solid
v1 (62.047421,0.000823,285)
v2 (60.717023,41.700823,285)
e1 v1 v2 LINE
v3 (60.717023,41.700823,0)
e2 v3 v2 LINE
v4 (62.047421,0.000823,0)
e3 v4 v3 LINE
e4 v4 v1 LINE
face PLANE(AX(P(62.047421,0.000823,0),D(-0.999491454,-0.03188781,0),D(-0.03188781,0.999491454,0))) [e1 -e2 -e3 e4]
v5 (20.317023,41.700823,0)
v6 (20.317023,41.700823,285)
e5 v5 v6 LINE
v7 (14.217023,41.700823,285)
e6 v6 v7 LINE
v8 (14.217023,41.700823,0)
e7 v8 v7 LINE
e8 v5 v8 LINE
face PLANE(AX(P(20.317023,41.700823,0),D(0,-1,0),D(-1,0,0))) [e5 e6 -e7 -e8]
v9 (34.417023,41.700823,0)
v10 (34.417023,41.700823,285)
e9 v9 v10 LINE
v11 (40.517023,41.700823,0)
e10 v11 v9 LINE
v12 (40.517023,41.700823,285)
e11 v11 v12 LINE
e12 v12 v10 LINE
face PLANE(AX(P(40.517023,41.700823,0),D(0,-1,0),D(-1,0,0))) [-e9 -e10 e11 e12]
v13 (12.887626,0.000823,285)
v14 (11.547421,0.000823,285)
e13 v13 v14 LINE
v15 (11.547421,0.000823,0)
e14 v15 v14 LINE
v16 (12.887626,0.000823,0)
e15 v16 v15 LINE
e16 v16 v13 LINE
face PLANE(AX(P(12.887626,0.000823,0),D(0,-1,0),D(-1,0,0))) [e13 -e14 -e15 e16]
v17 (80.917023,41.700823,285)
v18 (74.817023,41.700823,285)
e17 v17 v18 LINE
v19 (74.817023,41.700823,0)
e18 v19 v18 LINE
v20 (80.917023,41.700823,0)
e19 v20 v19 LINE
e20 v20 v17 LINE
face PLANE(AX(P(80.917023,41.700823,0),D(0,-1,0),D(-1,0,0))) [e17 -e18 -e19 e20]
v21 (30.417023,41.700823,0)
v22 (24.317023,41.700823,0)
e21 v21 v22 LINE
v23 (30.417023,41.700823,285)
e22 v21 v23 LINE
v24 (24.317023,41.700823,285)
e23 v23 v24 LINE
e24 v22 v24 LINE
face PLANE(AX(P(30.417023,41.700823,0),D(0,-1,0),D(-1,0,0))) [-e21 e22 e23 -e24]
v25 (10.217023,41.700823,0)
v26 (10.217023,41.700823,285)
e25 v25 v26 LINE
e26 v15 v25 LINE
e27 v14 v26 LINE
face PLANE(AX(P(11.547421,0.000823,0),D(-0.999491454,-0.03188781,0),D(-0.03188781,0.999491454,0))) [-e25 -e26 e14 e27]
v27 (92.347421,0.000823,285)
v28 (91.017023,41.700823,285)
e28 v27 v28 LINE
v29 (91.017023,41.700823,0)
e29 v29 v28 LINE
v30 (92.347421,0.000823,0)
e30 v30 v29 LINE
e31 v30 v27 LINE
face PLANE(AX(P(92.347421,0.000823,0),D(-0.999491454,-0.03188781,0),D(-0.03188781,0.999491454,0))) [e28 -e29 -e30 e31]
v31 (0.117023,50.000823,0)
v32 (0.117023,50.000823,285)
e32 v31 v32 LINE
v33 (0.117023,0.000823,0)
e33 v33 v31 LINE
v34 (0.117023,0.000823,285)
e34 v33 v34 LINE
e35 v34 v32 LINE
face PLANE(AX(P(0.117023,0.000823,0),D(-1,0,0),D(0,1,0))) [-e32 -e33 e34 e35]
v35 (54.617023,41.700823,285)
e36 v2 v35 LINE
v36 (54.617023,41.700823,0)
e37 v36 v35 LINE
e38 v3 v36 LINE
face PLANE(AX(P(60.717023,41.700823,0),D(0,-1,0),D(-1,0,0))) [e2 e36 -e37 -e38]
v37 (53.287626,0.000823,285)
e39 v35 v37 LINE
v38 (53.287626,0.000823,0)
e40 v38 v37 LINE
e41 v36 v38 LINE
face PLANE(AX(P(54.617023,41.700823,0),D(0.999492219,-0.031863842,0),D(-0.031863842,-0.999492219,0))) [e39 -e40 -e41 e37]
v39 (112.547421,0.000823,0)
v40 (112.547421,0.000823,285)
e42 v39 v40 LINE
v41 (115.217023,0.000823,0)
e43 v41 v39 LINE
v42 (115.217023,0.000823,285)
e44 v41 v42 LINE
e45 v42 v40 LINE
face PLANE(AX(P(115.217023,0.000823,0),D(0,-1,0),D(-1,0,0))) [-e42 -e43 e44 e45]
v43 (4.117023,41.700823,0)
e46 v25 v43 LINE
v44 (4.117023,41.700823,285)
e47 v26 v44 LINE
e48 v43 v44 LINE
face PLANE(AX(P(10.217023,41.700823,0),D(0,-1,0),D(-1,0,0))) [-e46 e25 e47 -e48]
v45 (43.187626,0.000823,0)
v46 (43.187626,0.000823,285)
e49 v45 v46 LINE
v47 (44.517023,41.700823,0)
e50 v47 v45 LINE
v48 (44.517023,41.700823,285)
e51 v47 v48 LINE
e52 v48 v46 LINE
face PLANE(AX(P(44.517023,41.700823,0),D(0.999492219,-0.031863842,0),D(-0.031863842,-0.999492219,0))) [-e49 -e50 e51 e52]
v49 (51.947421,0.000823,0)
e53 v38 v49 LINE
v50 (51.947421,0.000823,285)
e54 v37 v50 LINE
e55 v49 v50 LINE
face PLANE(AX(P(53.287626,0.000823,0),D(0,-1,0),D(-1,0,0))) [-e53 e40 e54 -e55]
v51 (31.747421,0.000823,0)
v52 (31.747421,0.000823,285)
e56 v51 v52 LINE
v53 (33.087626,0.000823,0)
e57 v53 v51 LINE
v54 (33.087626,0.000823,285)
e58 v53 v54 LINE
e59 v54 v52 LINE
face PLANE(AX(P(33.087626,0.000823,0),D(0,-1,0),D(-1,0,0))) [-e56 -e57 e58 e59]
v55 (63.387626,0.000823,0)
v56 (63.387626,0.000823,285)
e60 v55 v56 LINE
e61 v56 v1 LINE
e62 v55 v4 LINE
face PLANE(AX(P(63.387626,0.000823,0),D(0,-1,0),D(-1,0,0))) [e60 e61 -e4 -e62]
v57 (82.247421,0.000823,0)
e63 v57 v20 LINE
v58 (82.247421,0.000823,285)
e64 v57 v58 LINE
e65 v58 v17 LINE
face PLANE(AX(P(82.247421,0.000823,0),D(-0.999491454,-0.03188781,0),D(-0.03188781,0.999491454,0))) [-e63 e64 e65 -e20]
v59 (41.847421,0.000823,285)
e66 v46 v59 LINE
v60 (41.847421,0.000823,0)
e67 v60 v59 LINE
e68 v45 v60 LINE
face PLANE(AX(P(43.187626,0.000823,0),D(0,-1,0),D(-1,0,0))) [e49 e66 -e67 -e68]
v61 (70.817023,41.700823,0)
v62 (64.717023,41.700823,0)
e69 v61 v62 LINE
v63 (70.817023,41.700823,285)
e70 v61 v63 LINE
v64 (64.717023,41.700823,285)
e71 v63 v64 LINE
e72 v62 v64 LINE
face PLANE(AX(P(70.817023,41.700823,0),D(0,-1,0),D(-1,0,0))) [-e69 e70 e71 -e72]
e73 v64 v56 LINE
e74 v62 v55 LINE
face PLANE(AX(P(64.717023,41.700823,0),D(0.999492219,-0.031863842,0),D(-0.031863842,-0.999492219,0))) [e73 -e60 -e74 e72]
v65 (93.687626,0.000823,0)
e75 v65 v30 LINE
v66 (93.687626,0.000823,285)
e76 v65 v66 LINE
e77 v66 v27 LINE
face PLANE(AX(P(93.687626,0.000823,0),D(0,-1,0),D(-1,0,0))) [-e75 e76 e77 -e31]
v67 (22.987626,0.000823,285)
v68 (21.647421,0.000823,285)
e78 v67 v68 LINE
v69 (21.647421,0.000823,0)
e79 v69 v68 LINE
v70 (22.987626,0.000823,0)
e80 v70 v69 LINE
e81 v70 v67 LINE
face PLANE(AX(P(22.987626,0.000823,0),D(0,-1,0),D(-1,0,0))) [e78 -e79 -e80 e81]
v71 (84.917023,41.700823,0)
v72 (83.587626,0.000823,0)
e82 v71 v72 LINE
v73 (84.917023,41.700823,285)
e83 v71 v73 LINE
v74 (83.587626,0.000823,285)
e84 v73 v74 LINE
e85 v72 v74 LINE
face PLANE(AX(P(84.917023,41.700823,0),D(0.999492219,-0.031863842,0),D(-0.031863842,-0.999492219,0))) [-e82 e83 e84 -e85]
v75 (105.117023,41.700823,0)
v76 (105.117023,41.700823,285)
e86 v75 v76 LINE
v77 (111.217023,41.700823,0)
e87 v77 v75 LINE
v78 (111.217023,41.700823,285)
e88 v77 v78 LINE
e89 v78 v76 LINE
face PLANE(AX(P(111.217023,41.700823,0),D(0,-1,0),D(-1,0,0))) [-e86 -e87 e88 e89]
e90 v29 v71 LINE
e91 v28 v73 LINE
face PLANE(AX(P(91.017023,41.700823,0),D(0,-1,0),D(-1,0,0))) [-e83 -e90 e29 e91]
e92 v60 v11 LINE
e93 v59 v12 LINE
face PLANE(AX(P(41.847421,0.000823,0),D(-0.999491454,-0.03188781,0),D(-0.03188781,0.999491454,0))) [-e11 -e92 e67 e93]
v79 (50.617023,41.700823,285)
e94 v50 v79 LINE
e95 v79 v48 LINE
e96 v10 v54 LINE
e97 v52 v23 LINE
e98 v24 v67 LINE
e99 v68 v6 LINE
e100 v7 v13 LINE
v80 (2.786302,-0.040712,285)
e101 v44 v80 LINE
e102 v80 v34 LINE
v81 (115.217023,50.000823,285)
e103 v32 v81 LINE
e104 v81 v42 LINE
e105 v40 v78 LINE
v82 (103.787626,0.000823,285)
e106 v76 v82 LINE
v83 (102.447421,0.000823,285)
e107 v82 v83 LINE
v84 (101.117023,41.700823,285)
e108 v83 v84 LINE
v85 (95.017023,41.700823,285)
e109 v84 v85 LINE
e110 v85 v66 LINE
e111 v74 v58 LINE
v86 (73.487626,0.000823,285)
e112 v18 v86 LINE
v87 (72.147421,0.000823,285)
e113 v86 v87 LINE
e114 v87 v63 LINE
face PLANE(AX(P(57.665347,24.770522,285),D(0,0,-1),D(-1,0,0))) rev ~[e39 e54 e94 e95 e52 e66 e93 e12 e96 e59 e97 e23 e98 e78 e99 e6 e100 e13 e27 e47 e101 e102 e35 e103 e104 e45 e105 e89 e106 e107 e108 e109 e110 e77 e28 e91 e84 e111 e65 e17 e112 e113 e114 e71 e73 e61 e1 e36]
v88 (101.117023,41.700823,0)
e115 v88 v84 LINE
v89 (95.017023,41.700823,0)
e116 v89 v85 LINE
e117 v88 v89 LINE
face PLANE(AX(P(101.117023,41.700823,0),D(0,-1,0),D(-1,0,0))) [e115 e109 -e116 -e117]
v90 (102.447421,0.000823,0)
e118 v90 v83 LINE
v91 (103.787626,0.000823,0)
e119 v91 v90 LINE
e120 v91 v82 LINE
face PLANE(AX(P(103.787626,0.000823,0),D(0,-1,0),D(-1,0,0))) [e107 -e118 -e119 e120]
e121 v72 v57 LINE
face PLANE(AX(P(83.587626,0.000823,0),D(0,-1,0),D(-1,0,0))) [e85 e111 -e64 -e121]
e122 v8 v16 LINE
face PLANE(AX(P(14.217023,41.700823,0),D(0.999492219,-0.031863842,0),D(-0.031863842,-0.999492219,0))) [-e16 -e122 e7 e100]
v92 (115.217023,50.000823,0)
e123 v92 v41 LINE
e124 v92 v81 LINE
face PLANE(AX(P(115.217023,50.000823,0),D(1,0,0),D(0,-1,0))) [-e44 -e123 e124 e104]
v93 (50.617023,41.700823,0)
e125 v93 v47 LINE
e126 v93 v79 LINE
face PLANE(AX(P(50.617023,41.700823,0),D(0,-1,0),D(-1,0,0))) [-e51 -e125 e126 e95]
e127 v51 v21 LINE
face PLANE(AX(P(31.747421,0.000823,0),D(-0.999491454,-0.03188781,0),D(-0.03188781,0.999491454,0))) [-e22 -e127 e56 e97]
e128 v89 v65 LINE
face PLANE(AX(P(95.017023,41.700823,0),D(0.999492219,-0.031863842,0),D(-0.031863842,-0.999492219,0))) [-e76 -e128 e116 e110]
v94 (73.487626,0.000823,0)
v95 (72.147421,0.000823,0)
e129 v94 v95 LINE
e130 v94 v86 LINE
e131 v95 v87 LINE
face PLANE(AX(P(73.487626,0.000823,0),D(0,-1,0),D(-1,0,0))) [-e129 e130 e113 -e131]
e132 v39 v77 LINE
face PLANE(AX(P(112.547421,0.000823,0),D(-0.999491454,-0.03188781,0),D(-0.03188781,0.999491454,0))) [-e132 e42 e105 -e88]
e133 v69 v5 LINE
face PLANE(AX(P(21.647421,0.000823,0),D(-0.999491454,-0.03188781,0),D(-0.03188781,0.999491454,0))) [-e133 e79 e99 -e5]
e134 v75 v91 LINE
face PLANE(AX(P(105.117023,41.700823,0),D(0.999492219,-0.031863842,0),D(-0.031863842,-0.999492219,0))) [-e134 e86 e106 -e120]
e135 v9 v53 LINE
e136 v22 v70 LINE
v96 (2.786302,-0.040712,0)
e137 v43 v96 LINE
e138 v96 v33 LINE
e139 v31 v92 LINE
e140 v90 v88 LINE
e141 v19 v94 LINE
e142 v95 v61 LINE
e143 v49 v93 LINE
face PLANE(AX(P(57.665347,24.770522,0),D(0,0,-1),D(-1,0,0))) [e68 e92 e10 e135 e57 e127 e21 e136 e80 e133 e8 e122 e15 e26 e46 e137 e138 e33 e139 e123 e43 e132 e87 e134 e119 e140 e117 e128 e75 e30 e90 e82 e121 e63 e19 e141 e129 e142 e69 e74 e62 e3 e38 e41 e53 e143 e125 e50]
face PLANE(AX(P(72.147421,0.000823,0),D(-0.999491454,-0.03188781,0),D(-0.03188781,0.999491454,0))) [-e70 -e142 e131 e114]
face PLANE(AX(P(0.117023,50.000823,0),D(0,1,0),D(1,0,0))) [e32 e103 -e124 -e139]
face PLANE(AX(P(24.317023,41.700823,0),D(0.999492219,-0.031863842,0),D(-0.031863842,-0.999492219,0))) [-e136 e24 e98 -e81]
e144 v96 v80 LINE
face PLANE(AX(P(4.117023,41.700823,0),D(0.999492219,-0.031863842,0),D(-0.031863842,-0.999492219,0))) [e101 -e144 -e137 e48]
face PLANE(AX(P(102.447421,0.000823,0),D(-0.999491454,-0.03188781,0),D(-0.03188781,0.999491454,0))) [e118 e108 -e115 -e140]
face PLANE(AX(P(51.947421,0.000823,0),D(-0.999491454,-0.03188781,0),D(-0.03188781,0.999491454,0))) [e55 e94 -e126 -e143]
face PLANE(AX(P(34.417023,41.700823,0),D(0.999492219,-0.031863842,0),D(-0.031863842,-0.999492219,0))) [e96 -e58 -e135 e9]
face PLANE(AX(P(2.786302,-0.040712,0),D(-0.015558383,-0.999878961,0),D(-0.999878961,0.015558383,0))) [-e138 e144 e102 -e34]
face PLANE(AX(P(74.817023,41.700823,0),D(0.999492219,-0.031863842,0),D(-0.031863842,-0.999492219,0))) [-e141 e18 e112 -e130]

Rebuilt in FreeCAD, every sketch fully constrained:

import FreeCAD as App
import Part
import Sketcher

V = App.Vector
Q = App.Units.Quantity


def add_polygon(sketch, points):
    """Adds a closed chain of lines whose ends are joined by coincident constraints."""
    first, n = sketch.GeometryCount, len(points)
    for a, b in zip(points, points[1:] + points[:1]):
        sketch.addGeometry(Part.LineSegment(App.Vector(*a, 0), App.Vector(*b, 0)), False)
    for i in range(n):
        sketch.addConstraint(Sketcher.Constraint("Coincident", first + i, 2, first + (i + 1) % n, 1))

doc = App.newDocument("Part")
body = doc.addObject("PartDesign::Body", "Body")

# Sketch on XY plane
sketch1 = body.newObject("Sketcher::SketchObject", "Sketch")
sketch1.AttachmentSupport = (doc.getObject("XY_Plane"), [""])
sketch1.MapMode = "FlatFace"
add_polygon(sketch1, [(0.117023, 50.000823), (0.117023, 0.000823), (2.786302, -0.040712), (4.117023, 41.700823), (10.217023, 41.700823), (11.547421, 0.000823), (12.887626, 0.000823), (14.217023, 41.700823), (20.317023, 41.700823), (21.647421, 0.000823), (22.987626, 0.000823), (24.317023, 41.700823), (30.417023, 41.700823), (31.747421, 0.000823), (33.087626, 0.000823), (34.417023, 41.700823), (40.517023, 41.700823), (41.847421, 0.000823), (43.187626, 0.000823), (44.517023, 41.700823), (50.617023, 41.700823), (51.947421, 0.000823), (53.287626, 0.000823), (54.617023, 41.700823), (60.717023, 41.700823), (62.047421, 0.000823), (63.387626, 0.000823), (64.717023, 41.700823), (70.817023, 41.700823), (72.147421, 0.000823), (73.487626, 0.000823), (74.817023, 41.700823), (80.917023, 41.700823), (82.247421, 0.000823), (83.587626, 0.000823), (84.917023, 41.700823), (91.017023, 41.700823), (92.347421, 0.000823), (93.687626, 0.000823), (95.017023, 41.700823), (101.117023, 41.700823), (102.447421, 0.000823), (103.787626, 0.000823), (105.117023, 41.700823), (111.217023, 41.700823), (112.547421, 0.000823), (115.217023, 0.000823), (115.217023, 50.000823)])  # lines 0-47
sketch1.addConstraint([
    Sketcher.Constraint("Vertical", 0),
    Sketcher.Constraint("Horizontal", 3),
    Sketcher.Constraint("Horizontal", 5),
    Sketcher.Constraint("Horizontal", 7),
    Sketcher.Constraint("Horizontal", 9),
    Sketcher.Constraint("Horizontal", 11),
    Sketcher.Constraint("Horizontal", 13),
    Sketcher.Constraint("Horizontal", 15),
    Sketcher.Constraint("Horizontal", 17),
    Sketcher.Constraint("Horizontal", 19),
    Sketcher.Constraint("Horizontal", 21),
    Sketcher.Constraint("Horizontal", 23),
    Sketcher.Constraint("Horizontal", 25),
    Sketcher.Constraint("Horizontal", 27),
    Sketcher.Constraint("Horizontal", 29),
    Sketcher.Constraint("Horizontal", 31),
    Sketcher.Constraint("Horizontal", 33),
    Sketcher.Constraint("Horizontal", 35),
    Sketcher.Constraint("Horizontal", 37),
    Sketcher.Constraint("Horizontal", 39),
    Sketcher.Constraint("Horizontal", 41),
    Sketcher.Constraint("Horizontal", 43),
    Sketcher.Constraint("Horizontal", 45),
    Sketcher.Constraint("Vertical", 46),
    Sketcher.Constraint("Horizontal", 47),
    Sketcher.Constraint("Parallel", 2, 6),
    Sketcher.Constraint("Parallel", 4, 8),
    Sketcher.Constraint("Parallel", 6, 10),
    Sketcher.Constraint("Parallel", 8, 12),
    Sketcher.Constraint("Parallel", 10, 14),
    Sketcher.Constraint("Parallel", 12, 16),
    Sketcher.Constraint("Parallel", 14, 18),
    Sketcher.Constraint("Parallel", 16, 20),
    Sketcher.Constraint("Parallel", 18, 22),
    Sketcher.Constraint("Parallel", 20, 24),
    Sketcher.Constraint("Parallel", 22, 26),
    Sketcher.Constraint("Parallel", 24, 28),
    Sketcher.Constraint("Parallel", 26, 30),
    Sketcher.Constraint("Parallel", 28, 32),
    Sketcher.Constraint("Parallel", 30, 34),
    Sketcher.Constraint("Parallel", 32, 36),
    Sketcher.Constraint("Parallel", 34, 38),
    Sketcher.Constraint("Parallel", 36, 40),
    Sketcher.Constraint("Parallel", 38, 42),
    Sketcher.Constraint("Parallel", 40, 44),
    Sketcher.Constraint("Horizontal", 0, 2, 4, 2),
    Sketcher.Constraint("Horizontal", 3, 2, 6, 2),
    Sketcher.Constraint("Horizontal", 5, 2, 8, 2),
    Sketcher.Constraint("Horizontal", 7, 2, 10, 2),
    Sketcher.Constraint("Horizontal", 9, 2, 12, 2),
    Sketcher.Constraint("Horizontal", 11, 2, 14, 2),
    Sketcher.Constraint("Horizontal", 13, 2, 16, 2),
    Sketcher.Constraint("Horizontal", 15, 2, 18, 2),
    Sketcher.Constraint("Horizontal", 17, 2, 20, 2),
    Sketcher.Constraint("Horizontal", 19, 2, 22, 2),
    Sketcher.Constraint("Horizontal", 21, 2, 24, 2),
    Sketcher.Constraint("Horizontal", 23, 2, 26, 2),
    Sketcher.Constraint("Horizontal", 25, 2, 28, 2),
    Sketcher.Constraint("Horizontal", 27, 2, 30, 2),
    Sketcher.Constraint("Horizontal", 29, 2, 32, 2),
    Sketcher.Constraint("Horizontal", 31, 2, 34, 2),
    Sketcher.Constraint("Horizontal", 33, 2, 36, 2),
    Sketcher.Constraint("Horizontal", 35, 2, 38, 2),
    Sketcher.Constraint("Horizontal", 37, 2, 40, 2),
    Sketcher.Constraint("Horizontal", 39, 2, 42, 2),
    Sketcher.Constraint("Horizontal", 41, 2, 44, 2),
    Sketcher.Constraint("Equal", 3, 7),
    Sketcher.Constraint("Equal", 5, 9),
    Sketcher.Constraint("Equal", 7, 11),
    Sketcher.Constraint("Equal", 9, 13),
    Sketcher.Constraint("Equal", 11, 15),
    Sketcher.Constraint("Equal", 13, 17),
    Sketcher.Constraint("Equal", 15, 19),
    Sketcher.Constraint("Equal", 17, 21),
    Sketcher.Constraint("Equal", 19, 23),
    Sketcher.Constraint("Equal", 21, 25),
    Sketcher.Constraint("Equal", 23, 27),
    Sketcher.Constraint("Equal", 25, 29),
    Sketcher.Constraint("Equal", 27, 31),
    Sketcher.Constraint("Equal", 29, 33),
    Sketcher.Constraint("Equal", 31, 35),
    Sketcher.Constraint("Equal", 33, 37),
    Sketcher.Constraint("Equal", 35, 39),
    Sketcher.Constraint("Equal", 37, 41),
    Sketcher.Constraint("Equal", 39, 43),
    Sketcher.Constraint("DistanceY", 0, 2, 0, 1, Q("50 mm")),
    Sketcher.Constraint("DistanceX", 3, 1, 3, 2, Q("6.1 mm")),
    Sketcher.Constraint("DistanceX", 47, 2, 47, 1, Q("115.1 mm")),
    Sketcher.Constraint("DistanceX", 0, 2, 2, 2, Q("4 mm")),
    Sketcher.Constraint("DistanceX", 3, 2, 6, 2, Q("4 mm")),
    Sketcher.Constraint("DistanceY", 0, 2, 2, 2, Q("41.7 mm")),
    Sketcher.Constraint("DistanceX", 45, 1, 45, 2, Q("2.669602 mm")),
    Sketcher.Constraint("Distance", 1, Q("2.669602 mm")),
    Sketcher.Constraint("DistanceX", -1, 1, 1, 2, Q("2.786302 mm")),
    Sketcher.Constraint("Distance", 2, Q("41.762741 mm")),
    Sketcher.Constraint("DistanceY", 1, 2, -1, 1, Q("0.040712 mm")),
])
pad1 = body.newObject("PartDesign::Pad", "Pad")
pad1.Profile = sketch1
pad1.Length = 285

doc.recompute()
